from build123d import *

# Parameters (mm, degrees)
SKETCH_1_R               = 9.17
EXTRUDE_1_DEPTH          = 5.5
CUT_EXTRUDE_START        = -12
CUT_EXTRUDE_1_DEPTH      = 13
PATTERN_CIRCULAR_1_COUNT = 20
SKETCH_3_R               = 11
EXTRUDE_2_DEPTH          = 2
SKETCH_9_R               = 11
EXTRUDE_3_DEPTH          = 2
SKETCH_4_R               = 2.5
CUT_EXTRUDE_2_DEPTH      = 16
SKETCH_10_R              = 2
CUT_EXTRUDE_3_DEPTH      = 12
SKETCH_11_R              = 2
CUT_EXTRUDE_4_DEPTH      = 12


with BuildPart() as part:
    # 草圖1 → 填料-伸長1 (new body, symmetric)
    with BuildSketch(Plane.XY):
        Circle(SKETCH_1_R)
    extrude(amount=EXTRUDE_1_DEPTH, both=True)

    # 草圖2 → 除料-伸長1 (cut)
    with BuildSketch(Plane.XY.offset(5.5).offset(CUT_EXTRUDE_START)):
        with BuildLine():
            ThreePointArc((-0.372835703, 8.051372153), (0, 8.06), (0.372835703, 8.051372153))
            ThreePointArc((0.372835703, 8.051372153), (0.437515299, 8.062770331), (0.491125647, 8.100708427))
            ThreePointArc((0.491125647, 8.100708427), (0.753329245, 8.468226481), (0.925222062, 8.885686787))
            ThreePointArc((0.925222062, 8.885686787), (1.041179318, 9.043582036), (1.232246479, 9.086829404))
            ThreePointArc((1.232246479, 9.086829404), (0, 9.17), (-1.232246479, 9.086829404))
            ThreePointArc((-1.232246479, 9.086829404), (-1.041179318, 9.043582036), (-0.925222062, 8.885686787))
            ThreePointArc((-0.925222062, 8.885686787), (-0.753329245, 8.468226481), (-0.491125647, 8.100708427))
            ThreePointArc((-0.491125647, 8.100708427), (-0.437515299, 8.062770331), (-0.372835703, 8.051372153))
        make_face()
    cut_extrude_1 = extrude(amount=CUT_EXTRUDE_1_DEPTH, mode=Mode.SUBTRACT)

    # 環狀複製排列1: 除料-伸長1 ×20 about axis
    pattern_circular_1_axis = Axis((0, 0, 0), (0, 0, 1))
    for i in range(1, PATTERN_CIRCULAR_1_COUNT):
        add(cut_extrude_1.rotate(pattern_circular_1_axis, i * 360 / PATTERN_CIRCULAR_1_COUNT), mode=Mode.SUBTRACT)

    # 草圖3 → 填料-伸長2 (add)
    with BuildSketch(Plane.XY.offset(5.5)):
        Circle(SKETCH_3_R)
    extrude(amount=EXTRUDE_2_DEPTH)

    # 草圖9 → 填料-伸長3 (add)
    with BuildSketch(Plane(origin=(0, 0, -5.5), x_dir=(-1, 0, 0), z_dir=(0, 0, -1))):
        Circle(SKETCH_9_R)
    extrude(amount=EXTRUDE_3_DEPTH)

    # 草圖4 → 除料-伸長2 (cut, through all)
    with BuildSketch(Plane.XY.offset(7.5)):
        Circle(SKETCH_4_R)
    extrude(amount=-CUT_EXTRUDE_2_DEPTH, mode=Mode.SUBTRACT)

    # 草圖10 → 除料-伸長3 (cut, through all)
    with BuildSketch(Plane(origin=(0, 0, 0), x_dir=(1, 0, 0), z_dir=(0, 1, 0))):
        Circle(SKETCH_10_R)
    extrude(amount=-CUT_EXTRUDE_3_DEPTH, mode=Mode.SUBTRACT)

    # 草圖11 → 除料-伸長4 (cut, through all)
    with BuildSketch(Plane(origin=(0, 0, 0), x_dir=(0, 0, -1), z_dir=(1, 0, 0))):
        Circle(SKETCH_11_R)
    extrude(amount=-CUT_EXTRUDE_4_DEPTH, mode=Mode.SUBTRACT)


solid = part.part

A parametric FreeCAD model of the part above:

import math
import FreeCAD as App
import Part
import Sketcher

V = App.Vector

doc = App.newDocument("Part")
body = doc.addObject("PartDesign::Body", "Body")

# Sketch on XY plane
sketch1 = body.newObject("Sketcher::SketchObject", "Sketch")
sketch1.AttachmentSupport = (doc.getObject("XY_Plane"), [""])
sketch1.MapMode = "FlatFace"
sketch1.addGeometry(Part.Circle(V(0, 0, 0), V(0, 0, 1), 9), False)
sketch1.addConstraint(Sketcher.Constraint("Coincident", 0, 3, -1, 1))
sketch1.addConstraint(Sketcher.Constraint("Diameter", 0, 18.34))
pad1 = body.newObject("PartDesign::Pad", "Pad")
pad1.Profile = sketch1
pad1.Length = 11
pad1.Midplane = True

# Sketch on XY plane
sketch2 = body.newObject("Sketcher::SketchObject", "Sketch001")
sketch2.AttachmentSupport = (doc.getObject("XY_Plane"), [""])
sketch2.MapMode = "FlatFace"
sketch2.AttachmentOffset = App.Placement(V(0, 0, -6.5), App.Rotation())
sketch2.addGeometry(Part.ArcOfCircle(Part.Circle(V(0, 0, 0), V(0, 0, 1), 8.06), math.radians(87.35), math.radians(92.65)), False)
sketch2.addGeometry(Part.ArcOfCircle(Part.Circle(V(0.38, 8.2, 0), V(0, 0, 1), 0.15), math.radians(-93), math.radians(-42)), False)
sketch2.addGeometry(Part.ArcOfCircle(Part.Circle(V(-0.98, 9.42, 0), V(0, 0, 1), 1.98), math.radians(-42), math.radians(-16)), False)
sketch2.addGeometry(Part.ArcOfCircle(Part.Circle(V(1.19, 8.81, 0), V(0, 0, 1), 0.28), math.radians(82), math.radians(164)), False)
sketch2.addGeometry(Part.ArcOfCircle(Part.Circle(V(0, 0, 0), V(0, 0, 1), 9.17), math.radians(82.28), math.radians(97.72)), False)
sketch2.addGeometry(Part.ArcOfCircle(Part.Circle(V(-1.19, 8.81, 0), V(0, 0, 1), 0.28), math.radians(16), math.radians(98)), False)
sketch2.addGeometry(Part.ArcOfCircle(Part.Circle(V(0.98, 9.42, 0), V(0, 0, 1), 1.98), math.radians(-164), math.radians(-138)), False)
sketch2.addGeometry(Part.ArcOfCircle(Part.Circle(V(-0.38, 8.2, 0), V(0, 0, 1), 0.15), math.radians(-138), math.radians(-87)), False)
sketch2.addConstraint(Sketcher.Constraint("Tangent", 0, 1, 1, 1))
sketch2.addConstraint(Sketcher.Constraint("Tangent", 1, 2, 2, 1))
sketch2.addConstraint(Sketcher.Constraint("Tangent", 2, 2, 3, 2))
sketch2.addConstraint(Sketcher.Constraint("Tangent", 3, 1, 4, 1))
sketch2.addConstraint(Sketcher.Constraint("Tangent", 4, 2, 5, 2))
sketch2.addConstraint(Sketcher.Constraint("Tangent", 5, 1, 6, 1))
sketch2.addConstraint(Sketcher.Constraint("Tangent", 6, 2, 7, 1))
sketch2.addConstraint(Sketcher.Constraint("Tangent", 7, 2, 0, 2))
sketch2.addConstraint(Sketcher.Constraint("Coincident", 0, 3, -1, 1))
sketch2.addConstraint(Sketcher.Constraint("Coincident", 4, 3, -1, 1))
sketch2.addConstraint(Sketcher.Constraint("Equal", 3, 5))
sketch2.addConstraint(Sketcher.Constraint("Equal", 2, 6))
sketch2.addConstraint(Sketcher.Constraint("Equal", 1, 7))
sketch2.addConstraint(Sketcher.Constraint("Symmetric", 2, 3, 6, 3, -2))
sketch2.addConstraint(Sketcher.Constraint("Radius", 0, 8.06))
sketch2.addConstraint(Sketcher.Constraint("Radius", 1, 0.15))
sketch2.addConstraint(Sketcher.Constraint("Radius", 3, 0.28))
sketch2.addConstraint(Sketcher.Constraint("Radius", 4, 9.17))
sketch2.addConstraint(Sketcher.Constraint("Radius", 2, 1.975))
sketch2.addConstraint(Sketcher.Constraint("DistanceX", 2, 3, 6, 3, 1.95))
sketch2.addConstraint(Sketcher.Constraint("DistanceY", -1, 1, 2, 3, 9.424))
pocket1 = body.newObject("PartDesign::Pocket", "Pocket")
pocket1.Profile = sketch2
pocket1.Length = 13
pocket1.Reversed = True
doc.recompute()

polarpattern = body.newObject("PartDesign::PolarPattern", "PolarPattern")
polarpattern.Originals = [pocket1]
polarpattern.Axis = (doc.getObject("Z_Axis"), [""])
polarpattern.Angle = 360
polarpattern.Occurrences = 20
body.Tip = polarpattern

# Sketch on XY plane
sketch3 = body.newObject("Sketcher::SketchObject", "Sketch002")
sketch3.AttachmentSupport = (doc.getObject("XY_Plane"), [""])
sketch3.MapMode = "FlatFace"
sketch3.AttachmentOffset = App.Placement(V(0, 0, 5.5), App.Rotation())
sketch3.addGeometry(Part.Circle(V(0, 0, 0), V(0, 0, 1), 11), False)
sketch3.addConstraint(Sketcher.Constraint("Coincident", 0, 3, -1, 1))
sketch3.addConstraint(Sketcher.Constraint("Diameter", 0, 22.0))
pad2 = body.newObject("PartDesign::Pad", "Pad001")
pad2.Profile = sketch3
pad2.Length = 2

# Sketch on XY plane
sketch4 = body.newObject("Sketcher::SketchObject", "Sketch003")
sketch4.AttachmentSupport = (doc.getObject("XY_Plane"), [""])
sketch4.MapMode = "FlatFace"
sketch4.AttachmentOffset = App.Placement(V(0, 0, -5.5), App.Rotation())
sketch4.addGeometry(Part.Circle(V(0, 0, 0), V(0, 0, 1), 11), False)
sketch4.addConstraint(Sketcher.Constraint("Coincident", 0, 3, -1, 1))
sketch4.addConstraint(Sketcher.Constraint("Diameter", 0, 22.0))
pad3 = body.newObject("PartDesign::Pad", "Pad002")
pad3.Profile = sketch4
pad3.Length = 2
pad3.Reversed = True

# Sketch on XY plane
sketch5 = body.newObject("Sketcher::SketchObject", "Sketch004")
sketch5.AttachmentSupport = (doc.getObject("XY_Plane"), [""])
sketch5.MapMode = "FlatFace"
sketch5.AttachmentOffset = App.Placement(V(0, 0, 7.5), App.Rotation())
sketch5.addGeometry(Part.Circle(V(0, 0, 0), V(0, 0, 1), 2.5), False)
sketch5.addConstraint(Sketcher.Constraint("Coincident", 0, 3, -1, 1))
sketch5.addConstraint(Sketcher.Constraint("Diameter", 0, 5.0))
pocket2 = body.newObject("PartDesign::Pocket", "Pocket001")
pocket2.Profile = sketch5
pocket2.Type = "ThroughAll"

# Sketch on XZ plane
sketch6 = body.newObject("Sketcher::SketchObject", "Sketch005")
sketch6.AttachmentSupport = (doc.getObject("XZ_Plane"), [""])
sketch6.MapMode = "FlatFace"
sketch6.addGeometry(Part.Circle(V(0, 0, 0), V(0, 0, 1), 2), False)
sketch6.addConstraint(Sketcher.Constraint("Coincident", 0, 3, -1, 1))
sketch6.addConstraint(Sketcher.Constraint("Diameter", 0, 4.0))
pocket3 = body.newObject("PartDesign::Pocket", "Pocket002")
pocket3.Profile = sketch6
pocket3.Type = "ThroughAll"
pocket3.Reversed = True

# Sketch on YZ plane
sketch7 = body.newObject("Sketcher::SketchObject", "Sketch006")
sketch7.AttachmentSupport = (doc.getObject("YZ_Plane"), [""])
sketch7.MapMode = "FlatFace"
sketch7.addGeometry(Part.Circle(V(0, 0, 0), V(0, 0, 1), 2), False)
sketch7.addConstraint(Sketcher.Constraint("Coincident", 0, 3, -1, 1))
sketch7.addConstraint(Sketcher.Constraint("Diameter", 0, 4.0))
pocket4 = body.newObject("PartDesign::Pocket", "Pocket003")
pocket4.Profile = sketch7
pocket4.Type = "ThroughAll"

doc.recompute()
